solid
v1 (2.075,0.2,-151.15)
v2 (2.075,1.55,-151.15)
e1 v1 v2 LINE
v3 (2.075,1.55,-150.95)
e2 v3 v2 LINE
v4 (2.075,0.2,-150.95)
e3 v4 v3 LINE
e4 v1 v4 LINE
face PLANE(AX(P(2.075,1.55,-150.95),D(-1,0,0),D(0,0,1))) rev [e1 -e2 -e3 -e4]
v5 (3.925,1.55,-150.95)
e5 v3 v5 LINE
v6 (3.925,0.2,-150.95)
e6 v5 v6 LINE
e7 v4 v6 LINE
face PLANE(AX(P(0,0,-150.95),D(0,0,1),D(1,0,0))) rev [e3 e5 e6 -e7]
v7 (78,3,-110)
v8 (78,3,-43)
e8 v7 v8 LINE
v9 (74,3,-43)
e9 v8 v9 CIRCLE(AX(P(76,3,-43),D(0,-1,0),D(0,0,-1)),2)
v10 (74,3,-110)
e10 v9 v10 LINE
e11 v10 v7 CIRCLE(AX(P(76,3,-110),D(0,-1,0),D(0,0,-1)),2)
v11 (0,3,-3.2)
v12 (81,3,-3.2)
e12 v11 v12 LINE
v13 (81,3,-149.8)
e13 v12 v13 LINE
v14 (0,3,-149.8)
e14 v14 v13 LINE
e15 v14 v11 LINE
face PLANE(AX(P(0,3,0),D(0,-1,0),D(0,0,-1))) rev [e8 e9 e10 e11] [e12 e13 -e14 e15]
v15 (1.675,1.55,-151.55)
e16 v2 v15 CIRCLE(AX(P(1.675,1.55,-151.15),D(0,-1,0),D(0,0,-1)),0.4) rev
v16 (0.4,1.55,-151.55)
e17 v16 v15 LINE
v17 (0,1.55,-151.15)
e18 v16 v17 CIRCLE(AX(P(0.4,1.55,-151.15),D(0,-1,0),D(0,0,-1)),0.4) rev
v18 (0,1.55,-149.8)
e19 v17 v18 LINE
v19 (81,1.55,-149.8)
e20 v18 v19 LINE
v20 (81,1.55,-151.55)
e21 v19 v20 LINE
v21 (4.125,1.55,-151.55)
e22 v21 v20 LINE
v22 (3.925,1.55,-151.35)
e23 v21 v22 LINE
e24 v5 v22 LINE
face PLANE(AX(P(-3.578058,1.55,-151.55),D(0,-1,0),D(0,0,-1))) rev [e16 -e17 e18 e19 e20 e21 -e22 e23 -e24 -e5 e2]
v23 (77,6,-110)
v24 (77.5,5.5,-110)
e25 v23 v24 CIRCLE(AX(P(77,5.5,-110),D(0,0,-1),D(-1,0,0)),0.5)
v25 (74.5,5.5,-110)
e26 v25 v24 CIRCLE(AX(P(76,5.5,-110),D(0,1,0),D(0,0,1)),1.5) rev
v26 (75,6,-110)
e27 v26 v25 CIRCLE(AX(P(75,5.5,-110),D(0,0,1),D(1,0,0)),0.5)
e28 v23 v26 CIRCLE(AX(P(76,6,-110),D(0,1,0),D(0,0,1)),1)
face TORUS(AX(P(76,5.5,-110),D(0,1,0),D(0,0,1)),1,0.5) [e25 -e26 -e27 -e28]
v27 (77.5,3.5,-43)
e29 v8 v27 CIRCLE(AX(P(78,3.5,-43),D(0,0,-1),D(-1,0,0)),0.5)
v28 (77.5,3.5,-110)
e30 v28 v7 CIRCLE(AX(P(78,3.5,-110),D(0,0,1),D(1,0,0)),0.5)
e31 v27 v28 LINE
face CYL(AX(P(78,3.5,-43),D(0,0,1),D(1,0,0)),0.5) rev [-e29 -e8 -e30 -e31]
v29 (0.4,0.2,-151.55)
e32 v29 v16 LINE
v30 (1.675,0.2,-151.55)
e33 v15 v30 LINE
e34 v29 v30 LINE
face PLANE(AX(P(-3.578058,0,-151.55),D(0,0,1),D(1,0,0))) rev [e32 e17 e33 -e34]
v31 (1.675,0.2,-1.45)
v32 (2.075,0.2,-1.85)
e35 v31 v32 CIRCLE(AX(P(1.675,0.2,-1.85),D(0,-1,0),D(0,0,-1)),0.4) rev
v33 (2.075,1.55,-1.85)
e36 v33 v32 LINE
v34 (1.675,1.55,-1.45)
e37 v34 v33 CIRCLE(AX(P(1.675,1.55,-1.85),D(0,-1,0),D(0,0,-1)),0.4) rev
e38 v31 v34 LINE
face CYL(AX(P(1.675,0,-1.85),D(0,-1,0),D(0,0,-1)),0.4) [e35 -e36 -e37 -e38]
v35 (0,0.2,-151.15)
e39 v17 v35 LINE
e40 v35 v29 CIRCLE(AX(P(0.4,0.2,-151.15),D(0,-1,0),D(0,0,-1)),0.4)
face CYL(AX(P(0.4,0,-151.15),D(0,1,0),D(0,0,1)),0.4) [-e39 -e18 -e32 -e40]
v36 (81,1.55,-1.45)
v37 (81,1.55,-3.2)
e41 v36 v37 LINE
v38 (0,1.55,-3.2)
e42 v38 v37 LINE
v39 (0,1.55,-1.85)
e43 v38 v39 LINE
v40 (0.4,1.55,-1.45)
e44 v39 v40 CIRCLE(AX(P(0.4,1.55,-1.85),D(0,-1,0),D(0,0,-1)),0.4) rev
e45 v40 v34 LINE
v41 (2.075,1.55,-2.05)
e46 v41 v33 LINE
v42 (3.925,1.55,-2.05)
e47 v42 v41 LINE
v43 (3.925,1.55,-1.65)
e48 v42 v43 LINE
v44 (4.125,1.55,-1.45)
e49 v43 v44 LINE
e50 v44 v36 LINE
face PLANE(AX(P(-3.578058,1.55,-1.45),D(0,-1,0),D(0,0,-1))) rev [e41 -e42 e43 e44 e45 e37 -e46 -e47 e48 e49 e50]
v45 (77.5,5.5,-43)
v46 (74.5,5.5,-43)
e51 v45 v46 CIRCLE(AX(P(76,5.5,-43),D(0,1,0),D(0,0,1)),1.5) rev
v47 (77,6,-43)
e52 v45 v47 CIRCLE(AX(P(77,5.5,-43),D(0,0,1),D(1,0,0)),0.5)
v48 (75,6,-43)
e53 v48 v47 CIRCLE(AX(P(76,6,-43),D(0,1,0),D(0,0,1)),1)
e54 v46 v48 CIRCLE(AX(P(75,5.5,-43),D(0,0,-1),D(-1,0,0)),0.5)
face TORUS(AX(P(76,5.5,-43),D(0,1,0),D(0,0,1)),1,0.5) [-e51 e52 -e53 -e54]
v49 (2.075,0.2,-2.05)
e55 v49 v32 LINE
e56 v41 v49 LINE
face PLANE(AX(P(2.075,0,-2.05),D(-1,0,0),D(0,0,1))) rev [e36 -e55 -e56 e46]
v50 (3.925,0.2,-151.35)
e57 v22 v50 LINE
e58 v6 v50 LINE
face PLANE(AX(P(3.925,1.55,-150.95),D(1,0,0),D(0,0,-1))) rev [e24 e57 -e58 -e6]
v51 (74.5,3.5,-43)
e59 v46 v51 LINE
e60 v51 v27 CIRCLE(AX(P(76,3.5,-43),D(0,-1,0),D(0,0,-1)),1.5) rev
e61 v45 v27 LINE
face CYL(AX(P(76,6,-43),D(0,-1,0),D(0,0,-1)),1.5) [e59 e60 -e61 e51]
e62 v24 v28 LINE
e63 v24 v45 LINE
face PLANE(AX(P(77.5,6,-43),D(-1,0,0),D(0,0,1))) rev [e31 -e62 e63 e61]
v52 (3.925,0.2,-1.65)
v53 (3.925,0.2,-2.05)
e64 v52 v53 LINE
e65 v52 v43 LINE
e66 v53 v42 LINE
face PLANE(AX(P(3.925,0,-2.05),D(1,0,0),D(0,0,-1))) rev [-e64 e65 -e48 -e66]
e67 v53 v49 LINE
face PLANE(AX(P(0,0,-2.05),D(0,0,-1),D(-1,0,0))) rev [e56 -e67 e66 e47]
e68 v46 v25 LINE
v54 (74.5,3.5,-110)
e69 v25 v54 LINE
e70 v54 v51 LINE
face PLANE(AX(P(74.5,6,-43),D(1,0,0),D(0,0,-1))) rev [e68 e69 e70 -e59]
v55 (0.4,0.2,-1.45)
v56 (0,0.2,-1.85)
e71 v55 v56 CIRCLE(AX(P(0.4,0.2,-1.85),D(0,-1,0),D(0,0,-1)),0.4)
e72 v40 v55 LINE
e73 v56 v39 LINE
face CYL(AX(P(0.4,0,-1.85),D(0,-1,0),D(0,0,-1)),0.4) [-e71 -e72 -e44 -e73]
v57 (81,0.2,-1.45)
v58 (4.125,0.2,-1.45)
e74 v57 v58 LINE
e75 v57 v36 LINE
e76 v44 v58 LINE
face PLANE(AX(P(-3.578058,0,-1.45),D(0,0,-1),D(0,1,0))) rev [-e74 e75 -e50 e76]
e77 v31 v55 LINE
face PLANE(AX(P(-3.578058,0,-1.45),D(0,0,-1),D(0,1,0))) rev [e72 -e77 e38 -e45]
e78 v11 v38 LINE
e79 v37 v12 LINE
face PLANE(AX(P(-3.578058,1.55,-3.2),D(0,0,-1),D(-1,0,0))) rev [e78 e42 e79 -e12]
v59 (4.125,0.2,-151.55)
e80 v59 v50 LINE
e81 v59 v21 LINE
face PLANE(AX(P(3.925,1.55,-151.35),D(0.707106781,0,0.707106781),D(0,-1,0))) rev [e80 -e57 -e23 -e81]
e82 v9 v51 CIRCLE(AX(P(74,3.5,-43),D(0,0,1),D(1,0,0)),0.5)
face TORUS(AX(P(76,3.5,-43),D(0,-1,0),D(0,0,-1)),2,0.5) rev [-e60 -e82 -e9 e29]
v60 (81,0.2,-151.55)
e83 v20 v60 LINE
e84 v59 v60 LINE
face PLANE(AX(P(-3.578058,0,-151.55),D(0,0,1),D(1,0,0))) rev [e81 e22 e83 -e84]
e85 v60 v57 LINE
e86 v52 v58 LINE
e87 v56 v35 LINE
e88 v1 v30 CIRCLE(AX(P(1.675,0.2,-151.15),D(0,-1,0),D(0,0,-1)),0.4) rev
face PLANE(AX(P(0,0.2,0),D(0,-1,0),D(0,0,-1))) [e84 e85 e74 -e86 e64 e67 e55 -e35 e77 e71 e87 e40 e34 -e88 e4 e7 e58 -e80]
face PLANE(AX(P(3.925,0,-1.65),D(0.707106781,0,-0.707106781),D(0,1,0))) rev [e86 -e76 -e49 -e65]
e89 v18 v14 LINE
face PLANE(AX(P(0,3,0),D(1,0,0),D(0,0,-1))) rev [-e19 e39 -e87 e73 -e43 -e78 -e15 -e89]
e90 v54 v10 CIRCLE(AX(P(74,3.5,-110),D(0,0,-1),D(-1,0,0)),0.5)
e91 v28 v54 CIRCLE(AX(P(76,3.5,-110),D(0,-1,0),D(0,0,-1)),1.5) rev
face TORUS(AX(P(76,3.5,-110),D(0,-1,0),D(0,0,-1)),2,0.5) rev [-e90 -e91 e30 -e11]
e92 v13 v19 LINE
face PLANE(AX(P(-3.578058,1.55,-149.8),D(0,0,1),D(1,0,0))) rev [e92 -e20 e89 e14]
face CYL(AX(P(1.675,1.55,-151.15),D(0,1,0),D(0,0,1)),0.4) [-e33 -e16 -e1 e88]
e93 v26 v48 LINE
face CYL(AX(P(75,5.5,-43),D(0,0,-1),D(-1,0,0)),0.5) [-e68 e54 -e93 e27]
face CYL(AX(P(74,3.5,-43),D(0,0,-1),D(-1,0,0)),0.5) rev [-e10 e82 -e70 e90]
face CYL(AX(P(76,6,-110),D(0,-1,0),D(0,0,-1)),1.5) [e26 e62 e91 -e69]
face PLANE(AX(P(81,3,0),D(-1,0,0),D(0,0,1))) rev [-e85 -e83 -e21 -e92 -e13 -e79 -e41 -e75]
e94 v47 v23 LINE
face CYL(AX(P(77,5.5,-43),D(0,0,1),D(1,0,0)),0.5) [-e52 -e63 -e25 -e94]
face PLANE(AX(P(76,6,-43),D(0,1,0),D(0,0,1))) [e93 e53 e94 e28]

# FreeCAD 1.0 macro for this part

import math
import FreeCAD as App
import Part
import Sketcher

V = App.Vector


def edges_at(feature, points):
    """Names of the edges that pass closest to the given points."""
    edges = feature.Shape.Edges
    near = lambda p: min(range(len(edges)), key=lambda i: edges[i].distToShape(Part.Vertex(*p))[0])
    return sorted({f"Edge{near(p) + 1}" for p in points})


def add_polygon(sketch, points):
    """Adds a closed chain of lines whose ends are joined by coincident constraints."""
    first, n = sketch.GeometryCount, len(points)
    for a, b in zip(points, points[1:] + points[:1]):
        sketch.addGeometry(Part.LineSegment(App.Vector(*a, 0), App.Vector(*b, 0)), False)
    for i in range(n):
        sketch.addConstraint(Sketcher.Constraint("Coincident", first + i, 2, first + (i + 1) % n, 1))

doc = App.newDocument("Part")
body = doc.addObject("PartDesign::Body", "Body")

sketch1 = body.newObject("Sketcher::SketchObject", "Sketch")
sketch1.AttachmentSupport = (doc.getObject("XZ_Plane"), [""])
sketch1.MapMode = "FlatFace"
add_polygon(sketch1, [(0, -153), (0, 0), (81, 0), (81, -153)])
sketch1.addConstraint([
    Sketcher.Constraint("Vertical", 0),
    Sketcher.Constraint("Horizontal", 1),
    Sketcher.Constraint("Vertical", 2),
    Sketcher.Constraint("Horizontal", 3),
    Sketcher.Constraint("Coincident", 0, 2, -1, 1),
    Sketcher.Constraint("DistanceX", 1, 1, 1, 2, 81.0),
    Sketcher.Constraint("DistanceY", 0, 1, 0, 2, 153.0),
])
pad1 = body.newObject("PartDesign::Pad", "Pad")
pad1.Profile = sketch1
pad1.Length = 3
pad1.Reversed = True

sketch2 = body.newObject("Sketcher::SketchObject", "Sketch001")
sketch2.AttachmentSupport = (doc.getObject("YZ_Plane"), [""])
sketch2.MapMode = "FlatFace"
sketch2.AttachmentOffset = App.Placement(V(0, 0, 81), App.Rotation())
add_polygon(sketch2, [(3, -3), (3, 0), (0, 0), (0, -1.2), (1.8, -1.2), (1.8, -3)])
add_polygon(sketch2, [(0, -151.8), (0, -153), (3, -153), (3, -150), (1.8, -150), (1.8, -151.8)])
sketch2.addConstraint([
    Sketcher.Constraint("Vertical", 0),
    Sketcher.Constraint("Horizontal", 1),
    Sketcher.Constraint("Vertical", 2),
    Sketcher.Constraint("Horizontal", 3),
    Sketcher.Constraint("Vertical", 4),
    Sketcher.Constraint("Horizontal", 5),
    Sketcher.Constraint("Vertical", 6),
    Sketcher.Constraint("Horizontal", 7),
    Sketcher.Constraint("Vertical", 8),
    Sketcher.Constraint("Horizontal", 9),
    Sketcher.Constraint("Vertical", 10),
    Sketcher.Constraint("Horizontal", 11),
    Sketcher.Constraint("Coincident", 1, 2, -1, 1),
    Sketcher.Constraint("PointOnObject", 6, 2, -2),
    Sketcher.Constraint("Vertical", 5, 2, 7, 2),
    Sketcher.Constraint("Vertical", 4, 2, 9, 2),
    Sketcher.Constraint("Equal", 7, 0),
    Sketcher.Constraint("Equal", 9, 2),
    Sketcher.Constraint("Equal", 2, 6),
    Sketcher.Constraint("Equal", 0, 8),
    Sketcher.Constraint("DistanceX", 1, 2, 1, 1, 3.0),
    Sketcher.Constraint("DistanceY", 6, 2, -1, 1, 153.0),
    Sketcher.Constraint("DistanceX", 3, 1, 3, 2, 1.75),
])
pocket1 = body.newObject("PartDesign::Pocket", "Pocket")
pocket1.Profile = sketch2
pocket1.Length = 81

sketch3 = body.newObject("Sketcher::SketchObject", "Sketch002")
sketch3.AttachmentSupport = (doc.getObject("YZ_Plane"), [""])
sketch3.MapMode = "FlatFace"
sketch3.AttachmentOffset = App.Placement(V(0, 0, 81), App.Rotation())
add_polygon(sketch3, [(3, -3.2), (3, -3), (1.75, -3), (1.75, -1.25), (0, -1.25), (0, -1.45), (1.55, -1.45), (1.55, -3.2)])
add_polygon(sketch3, [(0, -151.55), (0, -151.75), (1.75, -151.75), (1.75, -150), (3, -150), (3, -149.8), (1.55, -149.8), (1.55, -151.55)])
sketch3.addConstraint([
    Sketcher.Constraint("Vertical", 0),
    Sketcher.Constraint("Horizontal", 1),
    Sketcher.Constraint("Vertical", 2),
    Sketcher.Constraint("Horizontal", 3),
    Sketcher.Constraint("Vertical", 4),
    Sketcher.Constraint("Horizontal", 5),
    Sketcher.Constraint("Vertical", 6),
    Sketcher.Constraint("Horizontal", 7),
    Sketcher.Constraint("Vertical", 8),
    Sketcher.Constraint("Horizontal", 9),
    Sketcher.Constraint("Vertical", 10),
    Sketcher.Constraint("Horizontal", 11),
    Sketcher.Constraint("Vertical", 12),
    Sketcher.Constraint("Horizontal", 13),
    Sketcher.Constraint("Vertical", 14),
    Sketcher.Constraint("Horizontal", 15),
    Sketcher.Constraint("PointOnObject", 3, 2, -2),
    Sketcher.Constraint("PointOnObject", 8, 2, -2),
    Sketcher.Constraint("Vertical", 2, 2, 9, 2),
    Sketcher.Constraint("Vertical", 7, 2, 11, 2),
    Sketcher.Constraint("Vertical", 6, 2, 13, 2),
    Sketcher.Constraint("Equal", 9, 2),
    Sketcher.Constraint("Equal", 0, 4),
    Sketcher.Constraint("Equal", 4, 8),
    Sketcher.Constraint("Equal", 6, 10),
    Sketcher.Constraint("Equal", 8, 12),
    Sketcher.Constraint("DistanceY", 0, 1, 0, 2, 0.2),
    Sketcher.Constraint("DistanceX", -1, 1, 0, 2, 3.0),
    Sketcher.Constraint("DistanceY", 0, 2, -1, 1, 3.0),
    Sketcher.Constraint("DistanceY", 10, 2, -1, 1, 150.0),
    Sketcher.Constraint("DistanceX", 1, 2, 1, 1, 1.25),
    Sketcher.Constraint("DistanceX", 5, 1, 5, 2, 1.55),
])
pocket2 = body.newObject("PartDesign::Pocket", "Pocket001")
pocket2.Profile = sketch3
pocket2.Length = 81

sketch4 = body.newObject("Sketcher::SketchObject", "Sketch003")
sketch4.AttachmentSupport = (doc.getObject("XY_Plane"), [""])
sketch4.MapMode = "FlatFace"
sketch4.AttachmentOffset = App.Placement(V(0, 0, -1.45), App.Rotation())
add_polygon(sketch4, [(2.1, 1.6), (2.1, 0), (3.9, 0), (3.9, 1.6)])
sketch4.addConstraint([
    Sketcher.Constraint("Vertical", 0),
    Sketcher.Constraint("Horizontal", 1),
    Sketcher.Constraint("Vertical", 2),
    Sketcher.Constraint("Horizontal", 3),
    Sketcher.Constraint("PointOnObject", 0, 2, -1),
    Sketcher.Constraint("DistanceX", 1, 1, 1, 2, 1.85),
    Sketcher.Constraint("DistanceY", 0, 2, 0, 1, 1.55),
    Sketcher.Constraint("DistanceX", -1, 1, 0, 2, 2.075),
])
pocket3 = body.newObject("PartDesign::Pocket", "Pocket002")
pocket3.Profile = sketch4
pocket3.Length = 0.6
doc.recompute()

fillet = body.newObject("PartDesign::Fillet", "Fillet")
fillet.Base = (pocket3, edges_at(pocket3, [(2.075, 0.775, -1.45)]))
fillet.Radius = 0.4
doc.recompute()

chamfer = body.newObject("PartDesign::Chamfer", "Chamfer")
chamfer.Base = (fillet, edges_at(fillet, [(3.925, 0.775, -1.45)]))
chamfer.Size = 0.2

sketch5 = body.newObject("Sketcher::SketchObject", "Sketch004")
sketch5.AttachmentSupport = (doc.getObject("XY_Plane"), [""])
sketch5.MapMode = "FlatFace"
sketch5.AttachmentOffset = App.Placement(V(0, 0, -151.55), App.Rotation())
add_polygon(sketch5, [(3.9, 1.6), (3.9, 0), (2.1, 0), (2.1, 1.6)])
sketch5.addConstraint([
    Sketcher.Constraint("Vertical", 0),
    Sketcher.Constraint("Horizontal", 1),
    Sketcher.Constraint("Vertical", 2),
    Sketcher.Constraint("Horizontal", 3),
    Sketcher.Constraint("PointOnObject", 0, 2, -1),
    Sketcher.Constraint("DistanceX", 1, 2, 1, 1, 1.85),
    Sketcher.Constraint("DistanceY", 0, 2, 0, 1, 1.55),
    Sketcher.Constraint("DistanceX", -1, 1, 0, 2, 3.925),
])
pocket4 = body.newObject("PartDesign::Pocket", "Pocket003")
pocket4.Profile = sketch5
pocket4.Length = 0.6
pocket4.Reversed = True
doc.recompute()

fillet2 = body.newObject("PartDesign::Fillet", "Fillet001")
fillet2.Base = (pocket4, edges_at(pocket4, [(2.075, 0.775, -151.55)]))
fillet2.Radius = 0.4
doc.recompute()

chamfer2 = body.newObject("PartDesign::Chamfer", "Chamfer001")
chamfer2.Base = (fillet2, edges_at(fillet2, [(3.925, 0.775, -151.55)]))
chamfer2.Size = 0.2

sketch6 = body.newObject("Sketcher::SketchObject", "Sketch005")
sketch6.AttachmentSupport = (doc.getObject("XZ_Plane"), [""])
sketch6.MapMode = "FlatFace"
add_polygon(sketch6, [(81, -152), (81, -1), (0, -1), (0, -152)])
sketch6.addConstraint([
    Sketcher.Constraint("Vertical", 0),
    Sketcher.Constraint("Horizontal", 1),
    Sketcher.Constraint("Vertical", 2),
    Sketcher.Constraint("Horizontal", 3),
    Sketcher.Constraint("PointOnObject", 1, 2, -2),
    Sketcher.Constraint("DistanceX", 1, 2, 1, 1, 81.0),
    Sketcher.Constraint("DistanceY", 0, 1, 0, 2, 150.1),
    Sketcher.Constraint("DistanceY", 0, 2, -1, 1, 1.45),
])
pocket5 = body.newObject("PartDesign::Pocket", "Pocket004")
pocket5.Profile = sketch6
pocket5.Length = 0.2
doc.recompute()

fillet3 = body.newObject("PartDesign::Fillet", "Fillet002")
fillet3.Base = (pocket5, edges_at(pocket5, [(0, 0.875, -151.55), (0, 0.875, -1.45)]))
fillet3.Radius = 0.4

sketch7 = body.newObject("Sketcher::SketchObject", "Sketch006")
sketch7.AttachmentSupport = (doc.getObject("XZ_Plane"), [""])
sketch7.MapMode = "FlatFace"
sketch7.AttachmentOffset = App.Placement(V(0, 0, -3), App.Rotation())
sketch7.addGeometry([
    Part.LineSegment(V(74.5, -110, 0), V(74.5, -43, 0)),
    Part.ArcOfCircle(Part.Circle(V(76, -43, 0), V(0, 0, 1), 1.5), math.radians(0), math.radians(180)),
    Part.LineSegment(V(77.5, -43, 0), V(77.5, -110, 0)),
    Part.ArcOfCircle(Part.Circle(V(76, -110, 0), V(0, 0, 1), 1.5), math.radians(180), math.radians(360)),
], False)
sketch7.addConstraint([
    Sketcher.Constraint("Tangent", 0, 2, 1, 2),
    Sketcher.Constraint("Tangent", 1, 1, 2, 1),
    Sketcher.Constraint("Tangent", 2, 2, 3, 2),
    Sketcher.Constraint("Tangent", 3, 1, 0, 1),
    Sketcher.Constraint("Vertical", 0),
    Sketcher.Constraint("Vertical", 2),
    Sketcher.Constraint("Radius", 1, 1.5),
    Sketcher.Constraint("DistanceY", 0, 1, 0, 2, 67.0),
    Sketcher.Constraint("DistanceX", -1, 1, 1, 3, 76.0),
    Sketcher.Constraint("DistanceY", 1, 3, -1, 1, 43.0),
])
pad2 = body.newObject("PartDesign::Pad", "Pad001")
pad2.Profile = sketch7
pad2.Length = 3
pad2.Reversed = True
doc.recompute()

fillet4 = body.newObject("PartDesign::Fillet", "Fillet003")
fillet4.Base = (pad2, edges_at(pad2, [
    (76, 3, -41.5),
    (77.5, 3, -76.5),
    (76, 3, -111.5),
    (74.5, 3, -76.5),
    (76, 6, -41.5),
    (77.5, 6, -76.5),
    (76, 6, -111.5),
    (74.5, 6, -76.5),
]))
fillet4.Radius = 0.5

doc.recompute()
